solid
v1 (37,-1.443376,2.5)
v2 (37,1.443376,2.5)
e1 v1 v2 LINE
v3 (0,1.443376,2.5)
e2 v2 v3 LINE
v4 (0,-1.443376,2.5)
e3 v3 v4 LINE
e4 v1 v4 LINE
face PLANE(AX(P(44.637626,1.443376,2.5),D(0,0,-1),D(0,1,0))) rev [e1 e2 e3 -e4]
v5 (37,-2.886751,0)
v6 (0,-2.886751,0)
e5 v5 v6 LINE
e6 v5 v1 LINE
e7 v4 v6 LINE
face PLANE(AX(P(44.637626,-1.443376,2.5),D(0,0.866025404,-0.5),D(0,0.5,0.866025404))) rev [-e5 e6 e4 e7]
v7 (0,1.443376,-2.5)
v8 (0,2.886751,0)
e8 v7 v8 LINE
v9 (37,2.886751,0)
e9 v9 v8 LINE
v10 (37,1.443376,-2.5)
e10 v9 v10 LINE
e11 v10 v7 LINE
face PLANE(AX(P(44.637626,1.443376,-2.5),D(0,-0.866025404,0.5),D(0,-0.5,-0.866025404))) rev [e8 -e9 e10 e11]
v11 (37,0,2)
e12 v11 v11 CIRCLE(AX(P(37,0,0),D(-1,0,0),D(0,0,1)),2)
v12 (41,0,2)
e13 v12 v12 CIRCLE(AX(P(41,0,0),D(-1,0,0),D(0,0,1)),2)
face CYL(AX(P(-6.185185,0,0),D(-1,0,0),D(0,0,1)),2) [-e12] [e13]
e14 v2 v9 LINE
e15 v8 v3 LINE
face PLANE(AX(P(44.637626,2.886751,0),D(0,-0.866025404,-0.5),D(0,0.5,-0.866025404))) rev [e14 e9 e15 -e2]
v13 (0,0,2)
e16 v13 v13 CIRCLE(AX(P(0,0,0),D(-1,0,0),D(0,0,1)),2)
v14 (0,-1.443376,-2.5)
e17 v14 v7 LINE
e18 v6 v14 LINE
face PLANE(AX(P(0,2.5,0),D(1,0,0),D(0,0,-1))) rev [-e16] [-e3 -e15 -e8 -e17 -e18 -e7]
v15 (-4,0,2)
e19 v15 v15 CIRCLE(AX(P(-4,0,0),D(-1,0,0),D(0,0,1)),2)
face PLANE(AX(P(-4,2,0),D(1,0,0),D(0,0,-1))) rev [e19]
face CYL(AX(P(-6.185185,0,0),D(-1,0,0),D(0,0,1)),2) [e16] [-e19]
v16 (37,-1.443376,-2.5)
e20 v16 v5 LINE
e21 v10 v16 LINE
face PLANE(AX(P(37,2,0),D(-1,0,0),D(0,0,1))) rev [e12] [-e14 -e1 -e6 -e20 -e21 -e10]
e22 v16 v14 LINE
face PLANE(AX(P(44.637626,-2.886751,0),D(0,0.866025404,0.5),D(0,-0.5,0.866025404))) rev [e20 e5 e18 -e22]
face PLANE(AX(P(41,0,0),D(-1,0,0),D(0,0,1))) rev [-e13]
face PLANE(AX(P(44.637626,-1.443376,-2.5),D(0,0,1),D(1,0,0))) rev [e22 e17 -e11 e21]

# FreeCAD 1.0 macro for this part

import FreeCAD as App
import Part
import Sketcher
from FreeCAD import Vector
Q = App.Units.Quantity

doc = App.newDocument("Part")
body = doc.addObject("PartDesign::Body", "Body")

sketch1 = body.newObject("Sketcher::SketchObject", "Sketch")
sketch1.AttachmentSupport = (doc.getObject("XY_Plane"), [""])
sketch1.MapMode = "FlatFace"
sketch1.addGeometry(Part.LineSegment(Vector(0, 2, 0), Vector(-4, 2, 0)), False)
sketch1.addGeometry(Part.LineSegment(Vector(-4, 2, 0), Vector(-4, 0, 0)), False)
sketch1.addGeometry(Part.LineSegment(Vector(-4, 0, 0), Vector(41, 0, 0)), False)
sketch1.addGeometry(Part.LineSegment(Vector(41, 0, 0), Vector(41, 2, 0)), False)
sketch1.addGeometry(Part.LineSegment(Vector(41, 2, 0), Vector(37, 2, 0)), False)
sketch1.addGeometry(Part.LineSegment(Vector(37, 2, 0), Vector(37, 2.5, 0)), False)
sketch1.addGeometry(Part.LineSegment(Vector(37, 2.5, 0), Vector(0, 2.5, 0)), False)
sketch1.addGeometry(Part.LineSegment(Vector(0, 2.5, 0), Vector(0, 2, 0)), False)
sketch1.addConstraint(Sketcher.Constraint("Coincident", 0, 2, 1, 1))
sketch1.addConstraint(Sketcher.Constraint("Coincident", 1, 2, 2, 1))
sketch1.addConstraint(Sketcher.Constraint("Coincident", 2, 2, 3, 1))
sketch1.addConstraint(Sketcher.Constraint("Coincident", 3, 2, 4, 1))
sketch1.addConstraint(Sketcher.Constraint("Coincident", 4, 2, 5, 1))
sketch1.addConstraint(Sketcher.Constraint("Coincident", 5, 2, 6, 1))
sketch1.addConstraint(Sketcher.Constraint("Coincident", 6, 2, 7, 1))
sketch1.addConstraint(Sketcher.Constraint("Coincident", 7, 2, 0, 1))
sketch1.addConstraint(Sketcher.Constraint("Horizontal", 0))
sketch1.addConstraint(Sketcher.Constraint("Vertical", 1))
sketch1.addConstraint(Sketcher.Constraint("Horizontal", 2))
sketch1.addConstraint(Sketcher.Constraint("Vertical", 3))
sketch1.addConstraint(Sketcher.Constraint("Horizontal", 4))
sketch1.addConstraint(Sketcher.Constraint("Vertical", 5))
sketch1.addConstraint(Sketcher.Constraint("Horizontal", 6))
sketch1.addConstraint(Sketcher.Constraint("Vertical", 7))
sketch1.addConstraint(Sketcher.Constraint("PointOnObject", 1, 2, -1))
sketch1.addConstraint(Sketcher.Constraint("PointOnObject", 6, 2, -2))
sketch1.addConstraint(Sketcher.Constraint("Horizontal", 0, 2, 3, 2))
sketch1.addConstraint(Sketcher.Constraint("Equal", 0, 4))
sketch1.addConstraint(Sketcher.Constraint("DistanceX", 0, 2, 0, 1, Q("4 mm")))
sketch1.addConstraint(Sketcher.Constraint("DistanceX", 2, 1, 2, 2, Q("45 mm")))
sketch1.addConstraint(Sketcher.Constraint("DistanceY", 1, 2, 1, 1, Q("2 mm")))
sketch1.addConstraint(Sketcher.Constraint("DistanceY", 5, 1, 5, 2, Q("0.5 mm")))
revolution = body.newObject("PartDesign::Revolution", "Revolution")
revolution.Profile = sketch1
revolution.ReferenceAxis = (sketch1, ["H_Axis"])
revolution.Angle = 360

sketch2 = body.newObject("Sketcher::SketchObject", "Sketch001")
sketch2.AttachmentSupport = (doc.getObject("YZ_Plane"), [""])
sketch2.MapMode = "FlatFace"
sketch2.addGeometry(Part.LineSegment(Vector(2.9, 0, 0), Vector(1.4, 2.5, 0)), False)
sketch2.addGeometry(Part.LineSegment(Vector(1.4, 2.5, 0), Vector(-1.4, 2.5, 0)), False)
sketch2.addGeometry(Part.LineSegment(Vector(-1.4, 2.5, 0), Vector(-2.9, 0, 0)), False)
sketch2.addGeometry(Part.LineSegment(Vector(-2.9, 0, 0), Vector(-1.4, -2.5, 0)), False)
sketch2.addGeometry(Part.LineSegment(Vector(-1.4, -2.5, 0), Vector(1.4, -2.5, 0)), False)
sketch2.addGeometry(Part.LineSegment(Vector(1.4, -2.5, 0), Vector(2.9, 0, 0)), False)
sketch2.addConstraint(Sketcher.Constraint("Coincident", 0, 2, 1, 1))
sketch2.addConstraint(Sketcher.Constraint("Coincident", 1, 2, 2, 1))
sketch2.addConstraint(Sketcher.Constraint("Coincident", 2, 2, 3, 1))
sketch2.addConstraint(Sketcher.Constraint("Coincident", 3, 2, 4, 1))
sketch2.addConstraint(Sketcher.Constraint("Coincident", 4, 2, 5, 1))
sketch2.addConstraint(Sketcher.Constraint("Coincident", 5, 2, 0, 1))
sketch2.addConstraint(Sketcher.Constraint("Horizontal", 1))
sketch2.addConstraint(Sketcher.Constraint("Horizontal", 4))
sketch2.addConstraint(Sketcher.Constraint("Symmetric", 0, 2, 3, 2, -1, 1))
sketch2.addConstraint(Sketcher.Constraint("Symmetric", 2, 2, 5, 2, -1, 1))
sketch2.addConstraint(Sketcher.Constraint("PointOnObject", 2, 2, -1))
sketch2.addConstraint(Sketcher.Constraint("Parallel", 2, 5))
sketch2.addConstraint(Sketcher.Constraint("Vertical", 1, 2, 3, 2))
sketch2.addConstraint(Sketcher.Constraint("Angle", 0, Q("120 deg")))
sketch2.addConstraint(Sketcher.Constraint("DistanceY", 3, 2, 1, 2, Q("5 mm")))
sketch2.addConstraint(Sketcher.Constraint("DistanceX", 1, 2, 1, 1, Q("2.886751 mm")))
pad1 = body.newObject("PartDesign::Pad", "Pad")
pad1.Profile = sketch2
pad1.Length = 37

doc.recompute()
